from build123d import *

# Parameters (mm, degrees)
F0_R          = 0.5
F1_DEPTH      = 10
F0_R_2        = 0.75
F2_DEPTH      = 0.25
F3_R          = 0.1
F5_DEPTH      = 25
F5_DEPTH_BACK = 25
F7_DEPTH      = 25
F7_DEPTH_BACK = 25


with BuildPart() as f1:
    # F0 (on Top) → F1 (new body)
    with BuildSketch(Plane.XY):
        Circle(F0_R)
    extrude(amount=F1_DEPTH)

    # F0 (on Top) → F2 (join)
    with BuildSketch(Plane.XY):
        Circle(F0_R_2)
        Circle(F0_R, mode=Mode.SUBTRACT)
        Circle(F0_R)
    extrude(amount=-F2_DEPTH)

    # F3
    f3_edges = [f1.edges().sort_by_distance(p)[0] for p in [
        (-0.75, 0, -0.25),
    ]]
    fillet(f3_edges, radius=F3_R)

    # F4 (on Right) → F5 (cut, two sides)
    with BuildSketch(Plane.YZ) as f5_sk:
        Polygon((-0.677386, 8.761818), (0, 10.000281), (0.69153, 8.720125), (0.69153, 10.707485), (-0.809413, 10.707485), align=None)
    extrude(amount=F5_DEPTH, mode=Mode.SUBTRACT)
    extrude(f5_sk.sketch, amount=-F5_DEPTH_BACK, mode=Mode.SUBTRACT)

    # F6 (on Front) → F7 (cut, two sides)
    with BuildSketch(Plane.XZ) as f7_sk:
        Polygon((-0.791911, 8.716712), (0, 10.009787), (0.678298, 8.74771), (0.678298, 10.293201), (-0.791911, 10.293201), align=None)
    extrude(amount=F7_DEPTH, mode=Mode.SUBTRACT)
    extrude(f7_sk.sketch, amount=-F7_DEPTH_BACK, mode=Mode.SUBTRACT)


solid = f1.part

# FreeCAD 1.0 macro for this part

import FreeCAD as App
import Part
import Sketcher


def edges_at(feature, points):
    """Names of the edges that pass closest to the given points."""
    edges = feature.Shape.Edges
    near = lambda p: min(range(len(edges)), key=lambda i: edges[i].distToShape(Part.Vertex(*p))[0])
    return sorted({f"Edge{near(p) + 1}" for p in points})

doc = App.newDocument("Part")
body = doc.addObject("PartDesign::Body", "Body")

# Sketch on XY plane
sketch1 = body.newObject("Sketcher::SketchObject", "Sketch")
sketch1.AttachmentSupport = (doc.getObject("XY_Plane"), [""])
sketch1.MapMode = "FlatFace"
sketch1.addGeometry(Part.Circle(App.Vector(0, 0, 0), App.Vector(0, 0, 1), 0.5), False)
sketch1.addConstraint([
    Sketcher.Constraint("Coincident", 0, 3, -1, 1),
    Sketcher.Constraint("Diameter", 0, 1.0),
])
pad1 = body.newObject("PartDesign::Pad", "Pad")
pad1.Profile = sketch1
pad1.Length = 10

# Sketch on XY plane
sketch2 = body.newObject("Sketcher::SketchObject", "Sketch001")
sketch2.AttachmentSupport = (doc.getObject("XY_Plane"), [""])
sketch2.MapMode = "FlatFace"
sketch2.addGeometry(Part.Circle(App.Vector(0, 0, 0), App.Vector(0, 0, 1), 0.75), False)
sketch2.addConstraint([
    Sketcher.Constraint("Coincident", 0, 3, -1, 1),
    Sketcher.Constraint("Diameter", 0, 1.5),
])
pad2 = body.newObject("PartDesign::Pad", "Pad001")
pad2.Profile = sketch2
pad2.Length = 0.25
pad2.Reversed = True
doc.recompute()

fillet = body.newObject("PartDesign::Fillet", "Fillet")
fillet.Base = (pad2, edges_at(pad2, [(-0.75, 0, -0.25)]))
fillet.Radius = 0.1

# Sketch on YZ plane
sketch3 = body.newObject("Sketcher::SketchObject", "Sketch002")
sketch3.AttachmentSupport = (doc.getObject("YZ_Plane"), [""])
sketch3.MapMode = "FlatFace"
sketch3.addGeometry([
    Part.LineSegment(App.Vector(-0.677386, 8.761818, 0), App.Vector(0, 10.000281, 0)),  # 0
    Part.LineSegment(App.Vector(0, 10.000281, 0), App.Vector(0.69153, 8.720125, 0)),  # 1
    Part.LineSegment(App.Vector(0.69153, 8.720125, 0), App.Vector(0.69153, 10.707485, 0)),  # 2
    Part.LineSegment(App.Vector(0.69153, 10.707485, 0), App.Vector(-0.809413, 10.707485, 0)),  # 3
    Part.LineSegment(App.Vector(-0.809413, 10.707485, 0), App.Vector(-0.677386, 8.761818, 0)),  # 4
], False)
sketch3.addConstraint([
    Sketcher.Constraint("Coincident", 0, 2, 1, 1),
    Sketcher.Constraint("Coincident", 1, 2, 2, 1),
    Sketcher.Constraint("Coincident", 2, 2, 3, 1),
    Sketcher.Constraint("Coincident", 3, 2, 4, 1),
    Sketcher.Constraint("Coincident", 4, 2, 0, 1),
    Sketcher.Constraint("Vertical", 2),
    Sketcher.Constraint("Horizontal", 3),
    Sketcher.Constraint("PointOnObject", 0, 2, -2),
    Sketcher.Constraint("DistanceY", 2, 1, 2, 2, 1.98736),
    Sketcher.Constraint("Distance", 0, 1.41161),
    Sketcher.Constraint("Distance", 4, 1.950141),
    Sketcher.Constraint("DistanceX", 3, 2, 3, 1, 1.500943),
    Sketcher.Constraint("DistanceY", -1, 1, 0, 2, 10.000281),
    Sketcher.Constraint("DistanceX", -1, 1, 1, 2, 0.69153),
    Sketcher.Constraint("Distance", 1, 1.454996),
])
pocket1 = body.newObject("PartDesign::Pocket", "Pocket")
pocket1.Profile = sketch3
pocket1.Type = "ThroughAll"
pocket1.Midplane = True

# Sketch on XZ plane
sketch4 = body.newObject("Sketcher::SketchObject", "Sketch003")
sketch4.AttachmentSupport = (doc.getObject("XZ_Plane"), [""])
sketch4.MapMode = "FlatFace"
sketch4.addGeometry([
    Part.LineSegment(App.Vector(-0.791911, 8.716712, 0), App.Vector(0, 10.009787, 0)),  # 0
    Part.LineSegment(App.Vector(0, 10.009787, 0), App.Vector(0.678298, 8.74771, 0)),  # 1
    Part.LineSegment(App.Vector(0.678298, 8.74771, 0), App.Vector(0.678298, 10.293201, 0)),  # 2
    Part.LineSegment(App.Vector(0.678298, 10.293201, 0), App.Vector(-0.791911, 10.293201, 0)),  # 3
    Part.LineSegment(App.Vector(-0.791911, 10.293201, 0), App.Vector(-0.791911, 8.716712, 0)),  # 4
], False)
sketch4.addConstraint([
    Sketcher.Constraint("Coincident", 0, 2, 1, 1),
    Sketcher.Constraint("Coincident", 1, 2, 2, 1),
    Sketcher.Constraint("Coincident", 2, 2, 3, 1),
    Sketcher.Constraint("Coincident", 3, 2, 4, 1),
    Sketcher.Constraint("Coincident", 4, 2, 0, 1),
    Sketcher.Constraint("Vertical", 2),
    Sketcher.Constraint("Horizontal", 3),
    Sketcher.Constraint("Vertical", 4),
    Sketcher.Constraint("PointOnObject", 0, 2, -2),
    Sketcher.Constraint("DistanceY", 4, 2, 1, 2, 0.030998),
    Sketcher.Constraint("Distance", 0, 1.5163),
    Sketcher.Constraint("DistanceX", 3, 2, 3, 1, 1.470209),
    Sketcher.Constraint("DistanceY", 2, 1, 2, 2, 1.545491),
    Sketcher.Constraint("DistanceY", -1, 1, 2, 2, 10.293201),
    Sketcher.Constraint("DistanceX", 3, 2, -1, 1, 0.791911),
])
pocket2 = body.newObject("PartDesign::Pocket", "Pocket001")
pocket2.Profile = sketch4
pocket2.Type = "ThroughAll"
pocket2.Midplane = True

doc.recompute()
